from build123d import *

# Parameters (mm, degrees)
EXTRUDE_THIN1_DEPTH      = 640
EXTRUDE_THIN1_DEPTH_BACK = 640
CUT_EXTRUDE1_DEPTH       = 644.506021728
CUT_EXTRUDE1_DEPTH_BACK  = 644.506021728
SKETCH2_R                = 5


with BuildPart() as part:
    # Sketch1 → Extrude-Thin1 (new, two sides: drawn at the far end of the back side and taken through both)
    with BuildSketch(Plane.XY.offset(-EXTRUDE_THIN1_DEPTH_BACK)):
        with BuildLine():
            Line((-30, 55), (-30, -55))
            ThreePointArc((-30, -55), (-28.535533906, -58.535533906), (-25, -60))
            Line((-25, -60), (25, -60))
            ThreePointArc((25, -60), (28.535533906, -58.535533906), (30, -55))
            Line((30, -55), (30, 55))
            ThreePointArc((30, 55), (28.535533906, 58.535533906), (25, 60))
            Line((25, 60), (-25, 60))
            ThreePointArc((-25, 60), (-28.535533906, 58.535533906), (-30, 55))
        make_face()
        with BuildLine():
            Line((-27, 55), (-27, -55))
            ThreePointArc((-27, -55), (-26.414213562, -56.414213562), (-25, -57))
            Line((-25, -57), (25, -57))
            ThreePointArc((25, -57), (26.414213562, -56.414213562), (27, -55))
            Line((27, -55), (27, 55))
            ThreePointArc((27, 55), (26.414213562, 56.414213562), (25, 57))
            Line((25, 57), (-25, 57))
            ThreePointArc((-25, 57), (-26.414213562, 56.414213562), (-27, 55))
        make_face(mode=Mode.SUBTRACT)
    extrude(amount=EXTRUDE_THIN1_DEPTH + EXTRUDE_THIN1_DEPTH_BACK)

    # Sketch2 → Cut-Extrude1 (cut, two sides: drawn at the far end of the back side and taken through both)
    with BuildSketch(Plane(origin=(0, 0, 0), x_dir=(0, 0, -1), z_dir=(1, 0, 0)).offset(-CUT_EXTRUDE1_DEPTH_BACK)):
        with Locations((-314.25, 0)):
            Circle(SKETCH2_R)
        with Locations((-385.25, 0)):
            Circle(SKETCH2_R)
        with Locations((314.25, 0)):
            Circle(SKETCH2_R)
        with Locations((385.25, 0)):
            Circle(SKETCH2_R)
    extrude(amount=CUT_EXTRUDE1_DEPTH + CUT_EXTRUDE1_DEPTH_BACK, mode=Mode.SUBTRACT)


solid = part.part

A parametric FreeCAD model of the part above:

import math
import FreeCAD as App
import Part
import Sketcher

V = App.Vector

doc = App.newDocument("Part")
body = doc.addObject("PartDesign::Body", "Body")

# Sketch on XY plane
sketch1 = body.newObject("Sketcher::SketchObject", "Sketch")
sketch1.AttachmentSupport = (doc.getObject("XY_Plane"), [""])
sketch1.MapMode = "FlatFace"
sketch1.addGeometry([
    Part.LineSegment(V(-30, 55, 0), V(-30, -55, 0)),  # 0
    Part.ArcOfCircle(Part.Circle(V(-25, -55, 0), V(0, 0, 1), 5), math.radians(180), math.radians(270)),  # 1
    Part.LineSegment(V(-25, -60, 0), V(25, -60, 0)),  # 2
    Part.ArcOfCircle(Part.Circle(V(25, -55, 0), V(0, 0, 1), 5), math.radians(-90), math.radians(0)),  # 3
    Part.LineSegment(V(30, -55, 0), V(30, 55, 0)),  # 4
    Part.ArcOfCircle(Part.Circle(V(25, 55, 0), V(0, 0, 1), 5), math.radians(0), math.radians(90)),  # 5
    Part.LineSegment(V(25, 60, 0), V(-25, 60, 0)),  # 6
    Part.ArcOfCircle(Part.Circle(V(-25, 55, 0), V(0, 0, 1), 5), math.radians(90), math.radians(180)),  # 7
    Part.LineSegment(V(-27, -55, 0), V(-27, 55, 0)),  # 8
    Part.ArcOfCircle(Part.Circle(V(-25, 55, 0), V(0, 0, 1), 2), math.radians(90), math.radians(180)),  # 9
    Part.LineSegment(V(-25, 57, 0), V(25, 57, 0)),  # 10
    Part.ArcOfCircle(Part.Circle(V(25, 55, 0), V(0, 0, 1), 2), math.radians(0), math.radians(90)),  # 11
    Part.LineSegment(V(27, 55, 0), V(27, -55, 0)),  # 12
    Part.ArcOfCircle(Part.Circle(V(25, -55, 0), V(0, 0, 1), 2), math.radians(-90), math.radians(0)),  # 13
    Part.LineSegment(V(25, -57, 0), V(-25, -57, 0)),  # 14
    Part.ArcOfCircle(Part.Circle(V(-25, -55, 0), V(0, 0, 1), 2), math.radians(-180), math.radians(-90)),  # 15
], False)
sketch1.addConstraint([
    Sketcher.Constraint("Tangent", 0, 2, 1, 1),
    Sketcher.Constraint("Tangent", 1, 2, 2, 1),
    Sketcher.Constraint("Tangent", 2, 2, 3, 1),
    Sketcher.Constraint("Tangent", 3, 2, 4, 1),
    Sketcher.Constraint("Tangent", 4, 2, 5, 1),
    Sketcher.Constraint("Tangent", 5, 2, 6, 1),
    Sketcher.Constraint("Tangent", 6, 2, 7, 1),
    Sketcher.Constraint("Tangent", 7, 2, 0, 1),
    Sketcher.Constraint("Tangent", 8, 2, 9, 2),
    Sketcher.Constraint("Tangent", 9, 1, 10, 1),
    Sketcher.Constraint("Tangent", 10, 2, 11, 2),
    Sketcher.Constraint("Tangent", 11, 1, 12, 1),
    Sketcher.Constraint("Tangent", 12, 2, 13, 2),
    Sketcher.Constraint("Tangent", 13, 1, 14, 1),
    Sketcher.Constraint("Tangent", 14, 2, 15, 2),
    Sketcher.Constraint("Tangent", 15, 1, 8, 1),
    Sketcher.Constraint("Vertical", 0),
    Sketcher.Constraint("Horizontal", 2),
    Sketcher.Constraint("Vertical", 4),
    Sketcher.Constraint("Horizontal", 6),
    Sketcher.Constraint("Vertical", 8),
    Sketcher.Constraint("Horizontal", 10),
    Sketcher.Constraint("Vertical", 12),
    Sketcher.Constraint("Horizontal", 14),
    Sketcher.Constraint("Coincident", 9, 3, 7, 3),
    Sketcher.Constraint("Coincident", 11, 3, 5, 3),
    Sketcher.Constraint("Coincident", 13, 3, 3, 3),
    Sketcher.Constraint("Equal", 1, 3),
    Sketcher.Constraint("Equal", 3, 5),
    Sketcher.Constraint("Equal", 5, 7),
    Sketcher.Constraint("Equal", 13, 15),
    Sketcher.Constraint("Symmetric", 1, 3, 5, 3, -1, 1),
    Sketcher.Constraint("Radius", 1, 5.0),
    Sketcher.Constraint("Radius", 9, 2.0),
    Sketcher.Constraint("DistanceX", 2, 1, 2, 2, 50.0),
    Sketcher.Constraint("DistanceY", 0, 2, 0, 1, 110.0),
])
pad1 = body.newObject("PartDesign::Pad", "Pad")
pad1.Profile = sketch1
pad1.Type = "TwoLengths"
pad1.Length = 640
pad1.Length2 = 640

# Sketch on YZ plane
sketch2 = body.newObject("Sketcher::SketchObject", "Sketch001")
sketch2.AttachmentSupport = (doc.getObject("YZ_Plane"), [""])
sketch2.MapMode = "FlatFace"
sketch2.addGeometry([
    Part.Circle(V(0, 314, 0), V(0, 0, 1), 5),
    Part.Circle(V(0, 385, 0), V(0, 0, 1), 5),
    Part.Circle(V(0, -314, 0), V(0, 0, 1), 5),
    Part.Circle(V(0, -385, 0), V(0, 0, 1), 5),
], False)
sketch2.addConstraint([
    Sketcher.Constraint("Equal", 0, 1),
    Sketcher.Constraint("Equal", 1, 2),
    Sketcher.Constraint("Equal", 2, 3),
    Sketcher.Constraint("Symmetric", 0, 3, 2, 3, -1, 1),
    Sketcher.Constraint("Symmetric", 1, 3, 3, 3, -1, 1),
    Sketcher.Constraint("PointOnObject", 0, 3, -2),
    Sketcher.Constraint("PointOnObject", 1, 3, -2),
    Sketcher.Constraint("Diameter", 0, 10.0),
    Sketcher.Constraint("DistanceY", 0, 3, 1, 3, 71.0),
    Sketcher.Constraint("DistanceY", 2, 3, 0, 3, 628.5),
])
pocket1 = body.newObject("PartDesign::Pocket", "Pocket")
pocket1.Profile = sketch2
pocket1.Type = "ThroughAll"
pocket1.Midplane = True

doc.recompute()
